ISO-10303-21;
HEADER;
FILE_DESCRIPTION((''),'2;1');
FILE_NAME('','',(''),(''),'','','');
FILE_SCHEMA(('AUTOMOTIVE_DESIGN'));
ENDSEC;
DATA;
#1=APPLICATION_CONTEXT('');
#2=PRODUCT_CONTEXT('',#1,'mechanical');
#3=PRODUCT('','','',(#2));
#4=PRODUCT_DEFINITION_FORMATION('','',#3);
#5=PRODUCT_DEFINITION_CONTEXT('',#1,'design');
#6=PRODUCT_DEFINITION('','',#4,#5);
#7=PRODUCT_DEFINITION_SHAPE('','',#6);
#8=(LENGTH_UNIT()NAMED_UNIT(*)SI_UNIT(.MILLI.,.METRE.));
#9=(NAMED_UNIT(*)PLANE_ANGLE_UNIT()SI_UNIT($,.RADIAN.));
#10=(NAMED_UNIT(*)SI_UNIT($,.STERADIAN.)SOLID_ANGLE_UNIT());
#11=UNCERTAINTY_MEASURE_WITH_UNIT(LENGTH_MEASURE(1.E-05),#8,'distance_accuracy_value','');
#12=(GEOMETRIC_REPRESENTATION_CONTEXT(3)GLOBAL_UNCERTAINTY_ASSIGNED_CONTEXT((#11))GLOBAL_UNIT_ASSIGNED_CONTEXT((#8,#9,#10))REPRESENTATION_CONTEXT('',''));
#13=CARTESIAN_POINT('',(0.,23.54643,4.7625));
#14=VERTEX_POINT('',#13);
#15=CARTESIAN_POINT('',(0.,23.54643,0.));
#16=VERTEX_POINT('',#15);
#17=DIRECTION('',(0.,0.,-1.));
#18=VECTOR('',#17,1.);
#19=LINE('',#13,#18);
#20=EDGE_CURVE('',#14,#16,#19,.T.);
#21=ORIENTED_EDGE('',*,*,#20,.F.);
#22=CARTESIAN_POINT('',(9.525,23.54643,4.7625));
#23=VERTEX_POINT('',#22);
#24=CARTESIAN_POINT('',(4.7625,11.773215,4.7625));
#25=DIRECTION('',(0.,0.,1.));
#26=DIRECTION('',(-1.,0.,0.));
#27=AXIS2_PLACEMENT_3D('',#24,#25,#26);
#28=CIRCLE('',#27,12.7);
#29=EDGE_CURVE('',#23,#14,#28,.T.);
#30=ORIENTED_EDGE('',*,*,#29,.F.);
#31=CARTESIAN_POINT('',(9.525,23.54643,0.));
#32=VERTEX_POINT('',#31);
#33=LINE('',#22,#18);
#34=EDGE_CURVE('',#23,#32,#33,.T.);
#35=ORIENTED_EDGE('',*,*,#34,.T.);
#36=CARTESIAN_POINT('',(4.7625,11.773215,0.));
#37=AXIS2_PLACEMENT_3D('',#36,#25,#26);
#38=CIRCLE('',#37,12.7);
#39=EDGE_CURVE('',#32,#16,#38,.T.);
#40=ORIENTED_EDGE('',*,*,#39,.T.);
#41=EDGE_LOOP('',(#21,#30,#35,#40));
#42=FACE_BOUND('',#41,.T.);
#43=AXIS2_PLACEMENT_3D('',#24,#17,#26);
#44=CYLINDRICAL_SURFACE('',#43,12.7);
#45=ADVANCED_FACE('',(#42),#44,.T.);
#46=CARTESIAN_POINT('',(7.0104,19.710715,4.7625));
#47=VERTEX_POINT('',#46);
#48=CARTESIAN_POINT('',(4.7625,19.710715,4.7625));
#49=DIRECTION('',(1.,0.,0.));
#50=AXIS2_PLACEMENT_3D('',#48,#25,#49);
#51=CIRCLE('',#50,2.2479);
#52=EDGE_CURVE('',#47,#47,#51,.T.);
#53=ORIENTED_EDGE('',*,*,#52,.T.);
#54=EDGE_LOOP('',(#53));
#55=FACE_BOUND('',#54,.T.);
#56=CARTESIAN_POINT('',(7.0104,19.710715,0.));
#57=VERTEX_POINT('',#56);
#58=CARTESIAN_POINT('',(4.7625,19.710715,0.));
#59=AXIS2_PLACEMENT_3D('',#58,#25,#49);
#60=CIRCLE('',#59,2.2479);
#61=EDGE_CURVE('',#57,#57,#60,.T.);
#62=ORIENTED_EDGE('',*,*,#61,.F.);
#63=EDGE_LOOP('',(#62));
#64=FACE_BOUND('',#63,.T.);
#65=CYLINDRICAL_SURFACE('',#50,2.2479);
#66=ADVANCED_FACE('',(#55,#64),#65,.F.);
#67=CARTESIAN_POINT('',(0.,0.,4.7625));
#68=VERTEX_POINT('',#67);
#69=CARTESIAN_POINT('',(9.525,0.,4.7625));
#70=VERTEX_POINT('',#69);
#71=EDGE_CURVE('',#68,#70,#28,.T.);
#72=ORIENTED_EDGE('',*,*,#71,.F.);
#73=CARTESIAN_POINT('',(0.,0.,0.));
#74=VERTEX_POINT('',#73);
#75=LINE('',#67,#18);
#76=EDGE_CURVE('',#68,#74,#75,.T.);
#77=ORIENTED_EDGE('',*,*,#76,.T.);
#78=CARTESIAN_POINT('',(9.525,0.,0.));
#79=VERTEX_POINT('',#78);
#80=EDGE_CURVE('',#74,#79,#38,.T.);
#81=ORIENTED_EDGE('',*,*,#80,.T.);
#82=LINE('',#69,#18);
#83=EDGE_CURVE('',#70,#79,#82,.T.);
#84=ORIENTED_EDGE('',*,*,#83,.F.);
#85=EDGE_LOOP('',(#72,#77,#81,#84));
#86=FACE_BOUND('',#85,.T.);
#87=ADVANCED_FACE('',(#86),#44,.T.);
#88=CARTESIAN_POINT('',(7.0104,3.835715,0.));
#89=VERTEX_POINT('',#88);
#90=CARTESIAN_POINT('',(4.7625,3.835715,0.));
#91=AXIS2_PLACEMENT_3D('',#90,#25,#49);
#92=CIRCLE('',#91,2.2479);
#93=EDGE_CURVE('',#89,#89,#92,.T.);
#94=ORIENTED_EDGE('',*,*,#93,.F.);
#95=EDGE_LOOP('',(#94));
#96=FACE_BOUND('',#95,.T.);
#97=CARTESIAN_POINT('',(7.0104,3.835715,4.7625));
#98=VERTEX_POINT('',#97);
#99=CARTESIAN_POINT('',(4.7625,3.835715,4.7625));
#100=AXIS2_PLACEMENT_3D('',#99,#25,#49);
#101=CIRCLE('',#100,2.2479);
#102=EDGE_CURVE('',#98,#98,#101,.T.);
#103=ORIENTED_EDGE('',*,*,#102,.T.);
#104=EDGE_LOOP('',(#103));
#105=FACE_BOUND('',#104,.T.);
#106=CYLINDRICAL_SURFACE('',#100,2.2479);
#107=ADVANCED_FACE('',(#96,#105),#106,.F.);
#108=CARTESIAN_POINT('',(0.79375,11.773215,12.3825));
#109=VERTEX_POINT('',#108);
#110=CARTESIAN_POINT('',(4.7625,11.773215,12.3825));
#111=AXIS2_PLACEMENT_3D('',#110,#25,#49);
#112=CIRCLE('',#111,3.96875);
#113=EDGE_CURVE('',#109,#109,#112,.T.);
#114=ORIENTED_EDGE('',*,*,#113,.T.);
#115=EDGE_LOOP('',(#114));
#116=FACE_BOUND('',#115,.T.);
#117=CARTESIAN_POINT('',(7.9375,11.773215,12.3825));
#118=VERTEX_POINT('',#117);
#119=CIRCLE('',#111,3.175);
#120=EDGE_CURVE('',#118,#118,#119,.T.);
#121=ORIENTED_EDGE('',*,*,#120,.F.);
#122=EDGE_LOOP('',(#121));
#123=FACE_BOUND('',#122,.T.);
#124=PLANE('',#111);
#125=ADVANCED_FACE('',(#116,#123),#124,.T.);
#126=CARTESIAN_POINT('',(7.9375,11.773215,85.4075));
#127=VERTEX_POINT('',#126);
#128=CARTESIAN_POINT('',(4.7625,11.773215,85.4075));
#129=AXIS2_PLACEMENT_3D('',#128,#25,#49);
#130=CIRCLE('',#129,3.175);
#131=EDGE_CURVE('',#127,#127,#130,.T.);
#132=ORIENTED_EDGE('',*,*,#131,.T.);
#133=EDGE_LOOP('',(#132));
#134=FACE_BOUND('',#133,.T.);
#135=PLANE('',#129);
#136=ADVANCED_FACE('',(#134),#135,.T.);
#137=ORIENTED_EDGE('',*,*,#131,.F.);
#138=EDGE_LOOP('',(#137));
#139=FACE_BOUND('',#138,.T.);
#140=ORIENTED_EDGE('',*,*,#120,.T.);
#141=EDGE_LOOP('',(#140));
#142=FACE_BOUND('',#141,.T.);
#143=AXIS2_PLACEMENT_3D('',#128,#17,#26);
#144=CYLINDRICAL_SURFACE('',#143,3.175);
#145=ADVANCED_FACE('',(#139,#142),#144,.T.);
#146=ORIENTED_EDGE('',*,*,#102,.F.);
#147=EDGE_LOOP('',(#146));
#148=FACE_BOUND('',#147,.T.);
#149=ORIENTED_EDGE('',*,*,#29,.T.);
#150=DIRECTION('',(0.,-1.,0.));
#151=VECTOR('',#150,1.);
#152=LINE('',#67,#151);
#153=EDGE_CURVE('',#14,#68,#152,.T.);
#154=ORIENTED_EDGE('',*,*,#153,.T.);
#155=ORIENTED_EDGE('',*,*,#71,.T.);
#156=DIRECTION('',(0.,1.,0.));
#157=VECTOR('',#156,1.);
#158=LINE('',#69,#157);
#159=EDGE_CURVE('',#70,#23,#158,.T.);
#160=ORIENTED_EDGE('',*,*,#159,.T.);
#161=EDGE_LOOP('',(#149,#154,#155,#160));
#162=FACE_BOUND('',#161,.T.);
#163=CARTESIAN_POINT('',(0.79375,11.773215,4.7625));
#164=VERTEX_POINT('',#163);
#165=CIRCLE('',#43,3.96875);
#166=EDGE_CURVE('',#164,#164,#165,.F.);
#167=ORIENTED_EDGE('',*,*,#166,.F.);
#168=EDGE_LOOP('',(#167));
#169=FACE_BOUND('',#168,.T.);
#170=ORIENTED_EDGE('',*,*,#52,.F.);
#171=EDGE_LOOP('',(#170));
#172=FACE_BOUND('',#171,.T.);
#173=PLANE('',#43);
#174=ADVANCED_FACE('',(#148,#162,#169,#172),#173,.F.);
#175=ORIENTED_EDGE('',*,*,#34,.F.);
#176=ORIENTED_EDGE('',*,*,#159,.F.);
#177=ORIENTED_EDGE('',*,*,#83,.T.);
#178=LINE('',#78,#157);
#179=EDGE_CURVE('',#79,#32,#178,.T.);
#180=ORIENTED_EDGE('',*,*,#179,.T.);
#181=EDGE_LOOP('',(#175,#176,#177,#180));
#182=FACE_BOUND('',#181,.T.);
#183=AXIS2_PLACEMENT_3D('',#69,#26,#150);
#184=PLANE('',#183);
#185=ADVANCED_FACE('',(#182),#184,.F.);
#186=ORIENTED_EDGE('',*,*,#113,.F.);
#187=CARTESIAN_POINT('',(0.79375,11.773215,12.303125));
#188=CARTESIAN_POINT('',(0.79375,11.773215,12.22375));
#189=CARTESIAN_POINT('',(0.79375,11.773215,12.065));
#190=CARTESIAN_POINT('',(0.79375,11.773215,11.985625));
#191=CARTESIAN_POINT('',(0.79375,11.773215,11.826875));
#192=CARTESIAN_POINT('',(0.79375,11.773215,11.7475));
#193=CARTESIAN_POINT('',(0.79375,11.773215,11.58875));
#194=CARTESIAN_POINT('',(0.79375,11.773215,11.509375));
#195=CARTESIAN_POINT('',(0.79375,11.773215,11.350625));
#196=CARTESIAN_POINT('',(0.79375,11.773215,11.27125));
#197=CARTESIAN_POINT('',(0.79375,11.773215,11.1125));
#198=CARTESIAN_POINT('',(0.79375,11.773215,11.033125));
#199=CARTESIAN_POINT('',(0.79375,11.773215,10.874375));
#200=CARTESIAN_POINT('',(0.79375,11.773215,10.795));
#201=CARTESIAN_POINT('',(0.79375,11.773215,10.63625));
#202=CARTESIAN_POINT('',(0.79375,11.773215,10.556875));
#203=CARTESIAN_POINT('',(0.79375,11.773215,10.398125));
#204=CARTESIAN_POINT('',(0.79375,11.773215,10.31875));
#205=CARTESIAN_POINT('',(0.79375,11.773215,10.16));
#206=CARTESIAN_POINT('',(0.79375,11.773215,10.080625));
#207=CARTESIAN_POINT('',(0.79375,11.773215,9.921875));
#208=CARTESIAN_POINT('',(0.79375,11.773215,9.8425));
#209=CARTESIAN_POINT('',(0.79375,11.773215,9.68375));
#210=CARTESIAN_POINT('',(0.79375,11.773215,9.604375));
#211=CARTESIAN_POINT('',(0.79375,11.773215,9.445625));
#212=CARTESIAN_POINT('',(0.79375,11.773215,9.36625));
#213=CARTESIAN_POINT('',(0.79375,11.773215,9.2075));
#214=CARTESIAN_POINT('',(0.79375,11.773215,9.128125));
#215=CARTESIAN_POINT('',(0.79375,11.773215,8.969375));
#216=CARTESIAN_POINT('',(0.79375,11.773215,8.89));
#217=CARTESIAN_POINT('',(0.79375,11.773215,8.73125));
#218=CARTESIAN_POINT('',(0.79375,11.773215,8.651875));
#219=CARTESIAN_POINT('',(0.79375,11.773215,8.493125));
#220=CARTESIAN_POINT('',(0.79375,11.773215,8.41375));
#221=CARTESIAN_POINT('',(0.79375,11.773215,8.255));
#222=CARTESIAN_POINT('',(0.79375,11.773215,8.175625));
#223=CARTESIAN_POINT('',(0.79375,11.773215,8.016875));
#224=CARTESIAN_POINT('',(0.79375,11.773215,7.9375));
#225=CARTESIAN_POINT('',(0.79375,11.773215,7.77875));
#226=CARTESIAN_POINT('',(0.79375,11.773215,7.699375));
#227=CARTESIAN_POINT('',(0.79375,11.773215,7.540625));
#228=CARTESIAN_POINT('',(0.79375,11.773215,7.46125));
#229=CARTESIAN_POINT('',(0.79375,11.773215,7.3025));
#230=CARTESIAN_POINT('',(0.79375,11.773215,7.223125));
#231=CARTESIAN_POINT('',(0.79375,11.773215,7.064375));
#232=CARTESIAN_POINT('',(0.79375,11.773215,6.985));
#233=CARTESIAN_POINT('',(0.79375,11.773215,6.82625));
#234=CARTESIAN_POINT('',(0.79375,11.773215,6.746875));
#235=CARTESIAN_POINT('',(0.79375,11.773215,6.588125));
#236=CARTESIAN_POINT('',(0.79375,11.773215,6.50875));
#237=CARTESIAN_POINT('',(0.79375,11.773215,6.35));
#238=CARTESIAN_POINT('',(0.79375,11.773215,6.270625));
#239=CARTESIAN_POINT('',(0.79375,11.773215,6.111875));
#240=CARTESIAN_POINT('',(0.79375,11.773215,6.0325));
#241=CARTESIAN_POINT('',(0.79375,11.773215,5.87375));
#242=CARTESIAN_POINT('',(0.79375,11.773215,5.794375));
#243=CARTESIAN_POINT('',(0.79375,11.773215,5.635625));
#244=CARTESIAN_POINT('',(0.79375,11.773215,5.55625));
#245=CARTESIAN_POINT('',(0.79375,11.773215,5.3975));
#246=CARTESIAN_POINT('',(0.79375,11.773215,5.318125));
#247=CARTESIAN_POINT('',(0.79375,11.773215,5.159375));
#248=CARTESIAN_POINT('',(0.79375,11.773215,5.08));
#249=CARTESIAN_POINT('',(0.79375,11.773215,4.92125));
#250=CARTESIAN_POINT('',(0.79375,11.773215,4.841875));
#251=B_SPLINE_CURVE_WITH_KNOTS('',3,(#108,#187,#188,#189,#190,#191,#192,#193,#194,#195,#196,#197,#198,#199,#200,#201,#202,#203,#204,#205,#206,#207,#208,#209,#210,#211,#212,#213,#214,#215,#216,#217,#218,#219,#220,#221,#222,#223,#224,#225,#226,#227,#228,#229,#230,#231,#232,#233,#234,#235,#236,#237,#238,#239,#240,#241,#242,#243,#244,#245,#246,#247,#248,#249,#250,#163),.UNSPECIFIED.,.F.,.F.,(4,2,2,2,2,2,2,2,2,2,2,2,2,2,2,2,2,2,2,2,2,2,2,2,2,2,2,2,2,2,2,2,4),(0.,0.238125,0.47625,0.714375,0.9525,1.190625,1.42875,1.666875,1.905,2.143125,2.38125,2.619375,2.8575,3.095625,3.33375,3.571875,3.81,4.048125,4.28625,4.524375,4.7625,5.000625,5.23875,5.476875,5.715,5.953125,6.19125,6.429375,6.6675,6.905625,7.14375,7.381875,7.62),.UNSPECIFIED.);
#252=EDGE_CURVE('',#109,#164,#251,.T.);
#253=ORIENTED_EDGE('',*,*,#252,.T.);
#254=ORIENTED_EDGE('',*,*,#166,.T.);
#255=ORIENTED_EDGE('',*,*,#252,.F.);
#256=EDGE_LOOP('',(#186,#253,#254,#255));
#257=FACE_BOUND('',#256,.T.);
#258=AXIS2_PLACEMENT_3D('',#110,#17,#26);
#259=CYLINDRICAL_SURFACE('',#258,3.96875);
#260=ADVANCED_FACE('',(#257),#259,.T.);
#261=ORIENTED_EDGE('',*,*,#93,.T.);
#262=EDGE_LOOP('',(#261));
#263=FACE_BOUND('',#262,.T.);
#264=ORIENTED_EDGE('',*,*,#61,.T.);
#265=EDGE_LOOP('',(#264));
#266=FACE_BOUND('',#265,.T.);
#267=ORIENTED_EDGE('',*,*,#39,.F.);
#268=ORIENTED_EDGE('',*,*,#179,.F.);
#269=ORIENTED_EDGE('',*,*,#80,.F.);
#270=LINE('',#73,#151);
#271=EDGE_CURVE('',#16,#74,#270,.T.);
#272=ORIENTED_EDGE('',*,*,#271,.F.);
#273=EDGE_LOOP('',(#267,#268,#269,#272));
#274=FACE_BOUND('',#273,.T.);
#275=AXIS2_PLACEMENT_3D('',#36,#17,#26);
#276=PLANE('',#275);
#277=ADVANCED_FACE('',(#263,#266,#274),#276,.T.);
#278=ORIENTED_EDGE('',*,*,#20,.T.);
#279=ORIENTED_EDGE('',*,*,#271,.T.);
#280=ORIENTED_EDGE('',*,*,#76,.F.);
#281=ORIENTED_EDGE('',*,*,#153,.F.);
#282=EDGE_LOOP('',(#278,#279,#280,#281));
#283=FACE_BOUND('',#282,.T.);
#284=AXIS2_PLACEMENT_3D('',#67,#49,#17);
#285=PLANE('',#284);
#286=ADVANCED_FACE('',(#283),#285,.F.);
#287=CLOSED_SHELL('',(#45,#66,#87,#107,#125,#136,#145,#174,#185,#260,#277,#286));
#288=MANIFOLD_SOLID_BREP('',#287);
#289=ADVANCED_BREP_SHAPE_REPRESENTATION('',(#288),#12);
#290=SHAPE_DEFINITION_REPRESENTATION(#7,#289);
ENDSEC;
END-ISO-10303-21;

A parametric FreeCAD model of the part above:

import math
import FreeCAD as App
import Part
import Sketcher

V = App.Vector
Q = App.Units.Quantity

doc = App.newDocument("Part")
body = doc.addObject("PartDesign::Body", "Body")

# Sketch on XY plane
sketch1 = body.newObject("Sketcher::SketchObject", "Sketch")
sketch1.AttachmentSupport = (doc.getObject("XY_Plane"), [""])
sketch1.MapMode = "FlatFace"
sketch1.addGeometry(Part.LineSegment(V(0, 23.54643, 0), V(0, 0, 0)), False)
sketch1.addGeometry(Part.ArcOfCircle(Part.Circle(V(4.7625, 11.773215, 0), V(0, 0, 1), 12.7), math.radians(-112.024313), math.radians(-67.975687)), False)
sketch1.addGeometry(Part.LineSegment(V(9.525, 0, 0), V(9.525, 23.54643, 0)), False)
sketch1.addGeometry(Part.ArcOfCircle(Part.Circle(V(4.7625, 11.773215, 0), V(0, 0, 1), 12.7), math.radians(67.975687), math.radians(112.024313)), False)
sketch1.addConstraint(Sketcher.Constraint("Coincident", 0, 2, 1, 1))
sketch1.addConstraint(Sketcher.Constraint("Coincident", 1, 2, 2, 1))
sketch1.addConstraint(Sketcher.Constraint("Coincident", 2, 2, 3, 1))
sketch1.addConstraint(Sketcher.Constraint("Coincident", 3, 2, 0, 1))
sketch1.addConstraint(Sketcher.Constraint("Vertical", 0))
sketch1.addConstraint(Sketcher.Constraint("Vertical", 2))
sketch1.addConstraint(Sketcher.Constraint("Coincident", 0, 2, -1, 1))
sketch1.addConstraint(Sketcher.Constraint("Coincident", 3, 3, 1, 3))
sketch1.addConstraint(Sketcher.Constraint("Equal", 1, 3))
sketch1.addConstraint(Sketcher.Constraint("PointOnObject", 1, 2, -1))
sketch1.addConstraint(Sketcher.Constraint("Radius", 1, Q("0.5 in")))
sketch1.addConstraint(Sketcher.Constraint("DistanceX", -1, 1, 1, 3, Q("0.1875 in")))
pad1 = body.newObject("PartDesign::Pad", "Pad")
pad1.Profile = sketch1
pad1.Length = Q("0.1875 in")

# Sketch on XY plane
sketch2 = body.newObject("Sketcher::SketchObject", "Sketch001")
sketch2.AttachmentSupport = (doc.getObject("XY_Plane"), [""])
sketch2.MapMode = "FlatFace"
sketch2.AttachmentOffset = App.Placement(V(0, 0, 0.1875 * 25.4), App.Rotation())
sketch2.addGeometry(Part.Circle(V(4.7625, 11.773215, 0), V(0, 0, 1), 3.96875), False)
sketch2.addConstraint(Sketcher.Constraint("Diameter", 0, Q("0.3125 in")))
sketch2.addConstraint(Sketcher.Constraint("DistanceX", -1, 1, 0, 3, Q("0.1875 in")))
sketch2.addConstraint(Sketcher.Constraint("DistanceY", -1, 1, 0, 3, 11.773215))
pad2 = body.newObject("PartDesign::Pad", "Pad001")
pad2.Profile = sketch2
pad2.Length = Q("0.3 in")

# Sketch on XY plane
sketch3 = body.newObject("Sketcher::SketchObject", "Sketch002")
sketch3.AttachmentSupport = (doc.getObject("XY_Plane"), [""])
sketch3.MapMode = "FlatFace"
sketch3.AttachmentOffset = App.Placement(V(0, 0, 0.4875 * 25.4), App.Rotation())
sketch3.addGeometry(Part.Circle(V(4.7625, 11.773215, 0), V(0, 0, 1), 3.175), False)
sketch3.addConstraint(Sketcher.Constraint("Diameter", 0, Q("0.25 in")))
sketch3.addConstraint(Sketcher.Constraint("DistanceX", -1, 1, 0, 3, Q("0.1875 in")))
sketch3.addConstraint(Sketcher.Constraint("DistanceY", -1, 1, 0, 3, 11.773215))
pad3 = body.newObject("PartDesign::Pad", "Pad002")
pad3.Profile = sketch3
pad3.Length = Q("2.875 in")

# Sketch on XY plane
sketch4 = body.newObject("Sketcher::SketchObject", "Sketch003")
sketch4.AttachmentSupport = (doc.getObject("XY_Plane"), [""])
sketch4.MapMode = "FlatFace"
sketch4.AttachmentOffset = App.Placement(V(0, 0, 0.1875 * 25.4), App.Rotation())
sketch4.addGeometry(Part.Circle(V(4.7625, 3.835715, 0), V(0, 0, 1), 2.2479), False)
sketch4.addGeometry(Part.Circle(V(4.7625, 19.710715, 0), V(0, 0, 1), 2.2479), False)
sketch4.addConstraint(Sketcher.Constraint("Equal", 0, 1))
sketch4.addConstraint(Sketcher.Constraint("Vertical", 0, 3, 1, 3))
sketch4.addConstraint(Sketcher.Constraint("Diameter", 0, Q("0.177 in")))
sketch4.addConstraint(Sketcher.Constraint("DistanceX", -1, 1, 0, 3, Q("0.1875 in")))
sketch4.addConstraint(Sketcher.Constraint("DistanceY", 0, 3, 1, 3, Q("0.625 in")))
sketch4.addConstraint(Sketcher.Constraint("DistanceY", -1, 1, 0, 3, 3.835715))
doc.recompute()
hole = body.newObject("PartDesign::Hole", "Hole")
hole.Profile = sketch4
hole.ThreadType = "None"
hole.Diameter = Q("0.177 in")
hole.DepthType = "ThroughAll"

doc.recompute()
